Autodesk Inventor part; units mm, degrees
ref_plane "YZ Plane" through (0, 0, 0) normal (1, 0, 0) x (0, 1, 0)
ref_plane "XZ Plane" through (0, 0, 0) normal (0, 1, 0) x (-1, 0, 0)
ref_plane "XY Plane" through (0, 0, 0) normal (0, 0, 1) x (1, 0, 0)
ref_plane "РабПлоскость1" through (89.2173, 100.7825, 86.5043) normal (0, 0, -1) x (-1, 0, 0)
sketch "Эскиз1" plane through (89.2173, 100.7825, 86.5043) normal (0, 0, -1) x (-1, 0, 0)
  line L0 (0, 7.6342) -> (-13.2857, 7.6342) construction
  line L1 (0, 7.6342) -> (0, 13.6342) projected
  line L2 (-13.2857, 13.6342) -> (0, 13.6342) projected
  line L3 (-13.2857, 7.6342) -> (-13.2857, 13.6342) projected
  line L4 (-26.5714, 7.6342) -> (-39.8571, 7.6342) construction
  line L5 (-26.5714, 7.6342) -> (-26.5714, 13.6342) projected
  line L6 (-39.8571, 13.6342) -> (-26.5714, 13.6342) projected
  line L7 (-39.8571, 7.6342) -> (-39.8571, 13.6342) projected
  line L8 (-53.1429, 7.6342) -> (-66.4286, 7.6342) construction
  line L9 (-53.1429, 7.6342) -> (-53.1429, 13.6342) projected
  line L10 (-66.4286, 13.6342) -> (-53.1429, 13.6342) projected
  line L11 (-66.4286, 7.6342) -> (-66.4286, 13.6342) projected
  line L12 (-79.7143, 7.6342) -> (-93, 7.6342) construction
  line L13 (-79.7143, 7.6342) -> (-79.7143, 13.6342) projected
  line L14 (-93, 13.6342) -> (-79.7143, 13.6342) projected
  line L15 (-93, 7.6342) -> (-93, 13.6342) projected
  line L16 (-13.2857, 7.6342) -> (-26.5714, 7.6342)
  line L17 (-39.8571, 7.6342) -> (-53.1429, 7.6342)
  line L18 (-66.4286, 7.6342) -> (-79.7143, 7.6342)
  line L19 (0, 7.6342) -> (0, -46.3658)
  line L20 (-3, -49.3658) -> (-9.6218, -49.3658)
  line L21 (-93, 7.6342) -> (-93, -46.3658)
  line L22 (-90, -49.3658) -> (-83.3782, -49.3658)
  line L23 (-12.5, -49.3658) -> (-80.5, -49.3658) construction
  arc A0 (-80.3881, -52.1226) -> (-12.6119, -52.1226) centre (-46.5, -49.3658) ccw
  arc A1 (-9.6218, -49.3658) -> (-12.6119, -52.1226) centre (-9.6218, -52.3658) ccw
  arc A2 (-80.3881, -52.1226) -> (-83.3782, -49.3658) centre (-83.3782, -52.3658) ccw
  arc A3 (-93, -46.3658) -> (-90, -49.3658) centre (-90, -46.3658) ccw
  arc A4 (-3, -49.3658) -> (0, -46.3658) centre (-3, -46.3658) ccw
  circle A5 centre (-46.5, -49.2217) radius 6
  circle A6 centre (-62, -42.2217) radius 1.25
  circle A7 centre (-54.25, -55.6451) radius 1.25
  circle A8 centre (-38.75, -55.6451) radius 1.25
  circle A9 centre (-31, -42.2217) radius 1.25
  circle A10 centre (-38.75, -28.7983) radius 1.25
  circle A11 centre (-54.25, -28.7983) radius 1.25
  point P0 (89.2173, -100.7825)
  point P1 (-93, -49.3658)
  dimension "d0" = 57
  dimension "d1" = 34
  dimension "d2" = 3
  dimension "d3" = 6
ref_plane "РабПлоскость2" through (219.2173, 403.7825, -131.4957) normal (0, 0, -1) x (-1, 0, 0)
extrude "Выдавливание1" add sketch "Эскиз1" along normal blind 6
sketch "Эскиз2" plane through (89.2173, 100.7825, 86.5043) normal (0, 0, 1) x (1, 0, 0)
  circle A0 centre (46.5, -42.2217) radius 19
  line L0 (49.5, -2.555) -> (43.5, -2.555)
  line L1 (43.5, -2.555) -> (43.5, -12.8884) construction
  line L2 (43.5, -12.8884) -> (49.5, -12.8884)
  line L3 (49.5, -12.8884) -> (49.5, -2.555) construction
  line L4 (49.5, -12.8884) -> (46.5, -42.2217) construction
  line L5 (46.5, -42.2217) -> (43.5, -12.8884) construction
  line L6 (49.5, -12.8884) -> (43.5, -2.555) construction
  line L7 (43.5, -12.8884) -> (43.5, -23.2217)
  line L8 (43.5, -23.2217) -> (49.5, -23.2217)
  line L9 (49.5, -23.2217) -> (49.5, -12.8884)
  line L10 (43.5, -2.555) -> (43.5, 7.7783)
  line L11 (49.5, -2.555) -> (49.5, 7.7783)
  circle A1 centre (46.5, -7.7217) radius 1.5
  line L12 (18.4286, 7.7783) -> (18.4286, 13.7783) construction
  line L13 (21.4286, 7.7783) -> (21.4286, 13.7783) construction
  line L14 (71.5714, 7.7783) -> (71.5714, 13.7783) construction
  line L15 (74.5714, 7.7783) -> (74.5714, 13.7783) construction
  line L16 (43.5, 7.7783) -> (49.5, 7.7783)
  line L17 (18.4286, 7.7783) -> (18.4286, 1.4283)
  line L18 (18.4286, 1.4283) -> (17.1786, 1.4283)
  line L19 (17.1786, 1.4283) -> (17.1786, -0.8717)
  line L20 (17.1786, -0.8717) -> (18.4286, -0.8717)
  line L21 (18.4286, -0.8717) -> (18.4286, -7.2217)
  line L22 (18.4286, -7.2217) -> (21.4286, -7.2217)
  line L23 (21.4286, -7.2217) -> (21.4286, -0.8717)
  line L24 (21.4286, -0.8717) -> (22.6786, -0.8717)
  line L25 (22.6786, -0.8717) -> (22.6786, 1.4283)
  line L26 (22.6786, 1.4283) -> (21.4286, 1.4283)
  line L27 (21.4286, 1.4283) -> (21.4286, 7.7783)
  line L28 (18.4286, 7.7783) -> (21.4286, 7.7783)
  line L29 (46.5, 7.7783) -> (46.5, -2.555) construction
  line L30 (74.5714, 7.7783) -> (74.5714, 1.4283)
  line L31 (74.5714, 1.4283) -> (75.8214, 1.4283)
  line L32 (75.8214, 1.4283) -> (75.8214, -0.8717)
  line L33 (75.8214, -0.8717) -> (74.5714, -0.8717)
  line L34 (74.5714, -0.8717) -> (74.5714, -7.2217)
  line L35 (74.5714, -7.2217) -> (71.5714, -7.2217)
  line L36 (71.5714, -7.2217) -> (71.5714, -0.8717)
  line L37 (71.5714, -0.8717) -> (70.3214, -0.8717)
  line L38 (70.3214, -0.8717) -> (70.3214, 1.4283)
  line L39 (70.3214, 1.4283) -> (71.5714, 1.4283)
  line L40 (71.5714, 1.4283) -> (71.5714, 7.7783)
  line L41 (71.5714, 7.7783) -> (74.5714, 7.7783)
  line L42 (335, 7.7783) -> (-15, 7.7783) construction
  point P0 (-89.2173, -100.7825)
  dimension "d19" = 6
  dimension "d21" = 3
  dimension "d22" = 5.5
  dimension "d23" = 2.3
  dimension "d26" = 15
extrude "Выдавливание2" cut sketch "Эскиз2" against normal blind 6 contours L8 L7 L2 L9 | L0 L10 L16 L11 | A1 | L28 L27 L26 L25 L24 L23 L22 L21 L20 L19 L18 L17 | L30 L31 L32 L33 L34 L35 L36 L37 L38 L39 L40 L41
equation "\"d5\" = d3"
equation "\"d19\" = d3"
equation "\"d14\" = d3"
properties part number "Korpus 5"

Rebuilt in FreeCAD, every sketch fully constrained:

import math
import FreeCAD as App
import Part
import Sketcher

V = App.Vector

doc = App.newDocument("Part")
body = doc.addObject("PartDesign::Body", "Body")

sketch1 = body.newObject("Sketcher::SketchObject", "Sketch")
sketch1.AttachmentSupport = (doc.getObject("XY_Plane"), [""])
sketch1.MapMode = "FlatFace"
sketch1.AttachmentOffset = App.Placement(V(0, 0, 86.5043), App.Rotation())
sketch1.addGeometry(Part.LineSegment(V(89.2, 54.4, 0), V(89.2, 114.4, 0)), False)
sketch1.addGeometry(Part.LineSegment(V(89.2, 114.4, 0), V(102.5, 114.4, 0)), False)
sketch1.addGeometry(Part.LineSegment(V(102.5, 114.4, 0), V(102.5, 108.4, 0)), False)
sketch1.addGeometry(Part.LineSegment(V(102.5, 108.4, 0), V(115.8, 108.4, 0)), False)
sketch1.addGeometry(Part.LineSegment(V(115.8, 108.4, 0), V(115.8, 114.4, 0)), False)
sketch1.addGeometry(Part.LineSegment(V(115.8, 114.4, 0), V(129.1, 114.4, 0)), False)
sketch1.addGeometry(Part.LineSegment(V(129.1, 114.4, 0), V(129.1, 108.4, 0)), False)
sketch1.addGeometry(Part.LineSegment(V(129.1, 108.4, 0), V(142.4, 108.4, 0)), False)
sketch1.addGeometry(Part.LineSegment(V(142.4, 108.4, 0), V(142.4, 114.4, 0)), False)
sketch1.addGeometry(Part.LineSegment(V(142.4, 114.4, 0), V(155.6, 114.4, 0)), False)
sketch1.addGeometry(Part.LineSegment(V(155.6, 114.4, 0), V(155.6, 108.4, 0)), False)
sketch1.addGeometry(Part.LineSegment(V(155.6, 108.4, 0), V(168.9, 108.4, 0)), False)
sketch1.addGeometry(Part.LineSegment(V(168.9, 108.4, 0), V(168.9, 114.4, 0)), False)
sketch1.addGeometry(Part.LineSegment(V(168.9, 114.4, 0), V(182.2, 114.4, 0)), False)
sketch1.addGeometry(Part.LineSegment(V(182.2, 114.4, 0), V(182.2, 54.4, 0)), False)
sketch1.addGeometry(Part.ArcOfCircle(Part.Circle(V(179.2, 54.4, 0), V(0, 0, 1), 3), math.radians(-90), math.radians(0)), False)
sketch1.addGeometry(Part.LineSegment(V(179.2, 51.4, 0), V(172.6, 51.4, 0)), False)
sketch1.addGeometry(Part.ArcOfCircle(Part.Circle(V(172.6, 48.4, 0), V(0, 0, 1), 3), math.radians(90), math.radians(175)), False)
sketch1.addGeometry(Part.ArcOfCircle(Part.Circle(V(135.7, 51.4, 0), V(0, 0, 1), 34), math.radians(-175), math.radians(-5)), False)
sketch1.addGeometry(Part.ArcOfCircle(Part.Circle(V(98.8, 48.4, 0), V(0, 0, 1), 3), math.radians(5), math.radians(90)), False)
sketch1.addGeometry(Part.LineSegment(V(98.8, 51.4, 0), V(92.2, 51.4, 0)), False)
sketch1.addGeometry(Part.ArcOfCircle(Part.Circle(V(92.2, 54.4, 0), V(0, 0, 1), 3), math.radians(180), math.radians(270)), False)
sketch1.addGeometry(Part.Circle(V(143.5, 45.1, 0), V(0, 0, 1), 1.2), False)
sketch1.addGeometry(Part.Circle(V(151.2, 58.6, 0), V(0, 0, 1), 1.2), False)
sketch1.addGeometry(Part.Circle(V(128, 45.1, 0), V(0, 0, 1), 1.2), False)
sketch1.addGeometry(Part.Circle(V(135.7, 51.6, 0), V(0, 0, 1), 6), False)
sketch1.addGeometry(Part.Circle(V(120.2, 58.6, 0), V(0, 0, 1), 1.2), False)
sketch1.addGeometry(Part.Circle(V(143.5, 72, 0), V(0, 0, 1), 1.2), False)
sketch1.addGeometry(Part.Circle(V(128, 72, 0), V(0, 0, 1), 1.2), False)
sketch1.addConstraint(Sketcher.Constraint("Coincident", 0, 2, 1, 1))
sketch1.addConstraint(Sketcher.Constraint("Coincident", 1, 2, 2, 1))
sketch1.addConstraint(Sketcher.Constraint("Coincident", 2, 2, 3, 1))
sketch1.addConstraint(Sketcher.Constraint("Coincident", 3, 2, 4, 1))
sketch1.addConstraint(Sketcher.Constraint("Coincident", 4, 2, 5, 1))
sketch1.addConstraint(Sketcher.Constraint("Coincident", 5, 2, 6, 1))
sketch1.addConstraint(Sketcher.Constraint("Coincident", 6, 2, 7, 1))
sketch1.addConstraint(Sketcher.Constraint("Coincident", 7, 2, 8, 1))
sketch1.addConstraint(Sketcher.Constraint("Coincident", 8, 2, 9, 1))
sketch1.addConstraint(Sketcher.Constraint("Coincident", 9, 2, 10, 1))
sketch1.addConstraint(Sketcher.Constraint("Coincident", 10, 2, 11, 1))
sketch1.addConstraint(Sketcher.Constraint("Coincident", 11, 2, 12, 1))
sketch1.addConstraint(Sketcher.Constraint("Coincident", 12, 2, 13, 1))
sketch1.addConstraint(Sketcher.Constraint("Coincident", 13, 2, 14, 1))
sketch1.addConstraint(Sketcher.Constraint("Tangent", 14, 2, 15, 2))
sketch1.addConstraint(Sketcher.Constraint("Tangent", 15, 1, 16, 1))
sketch1.addConstraint(Sketcher.Constraint("Tangent", 16, 2, 17, 1))
sketch1.addConstraint(Sketcher.Constraint("Tangent", 17, 2, 18, 2))
sketch1.addConstraint(Sketcher.Constraint("Tangent", 18, 1, 19, 1))
sketch1.addConstraint(Sketcher.Constraint("Tangent", 19, 2, 20, 1))
sketch1.addConstraint(Sketcher.Constraint("Tangent", 20, 2, 21, 2))
sketch1.addConstraint(Sketcher.Constraint("Tangent", 21, 1, 0, 1))
sketch1.addConstraint(Sketcher.Constraint("Vertical", 0))
sketch1.addConstraint(Sketcher.Constraint("Horizontal", 1))
sketch1.addConstraint(Sketcher.Constraint("Vertical", 2))
sketch1.addConstraint(Sketcher.Constraint("Horizontal", 3))
sketch1.addConstraint(Sketcher.Constraint("Vertical", 4))
sketch1.addConstraint(Sketcher.Constraint("Horizontal", 5))
sketch1.addConstraint(Sketcher.Constraint("Vertical", 6))
sketch1.addConstraint(Sketcher.Constraint("Horizontal", 7))
sketch1.addConstraint(Sketcher.Constraint("Vertical", 8))
sketch1.addConstraint(Sketcher.Constraint("Horizontal", 9))
sketch1.addConstraint(Sketcher.Constraint("Vertical", 10))
sketch1.addConstraint(Sketcher.Constraint("Horizontal", 11))
sketch1.addConstraint(Sketcher.Constraint("Vertical", 12))
sketch1.addConstraint(Sketcher.Constraint("Horizontal", 13))
sketch1.addConstraint(Sketcher.Constraint("Vertical", 14))
sketch1.addConstraint(Sketcher.Constraint("Horizontal", 16))
sketch1.addConstraint(Sketcher.Constraint("Horizontal", 20))
sketch1.addConstraint(Sketcher.Constraint("Equal", 15, 17))
sketch1.addConstraint(Sketcher.Constraint("Equal", 17, 19))
sketch1.addConstraint(Sketcher.Constraint("Equal", 19, 21))
sketch1.addConstraint(Sketcher.Constraint("Equal", 22, 23))
sketch1.addConstraint(Sketcher.Constraint("Equal", 23, 24))
sketch1.addConstraint(Sketcher.Constraint("Equal", 24, 26))
sketch1.addConstraint(Sketcher.Constraint("Equal", 26, 27))
sketch1.addConstraint(Sketcher.Constraint("Equal", 27, 28))
sketch1.addConstraint(Sketcher.Constraint("Horizontal", 17, 3, 19, 3))
sketch1.addConstraint(Sketcher.Constraint("Horizontal", 22, 3, 24, 3))
sketch1.addConstraint(Sketcher.Constraint("Horizontal", 23, 3, 26, 3))
sketch1.addConstraint(Sketcher.Constraint("Horizontal", 27, 3, 28, 3))
sketch1.addConstraint(Sketcher.Constraint("Horizontal", 1, 2, 4, 2))
sketch1.addConstraint(Sketcher.Constraint("Horizontal", 3, 2, 6, 2))
sketch1.addConstraint(Sketcher.Constraint("Horizontal", 5, 2, 8, 2))
sketch1.addConstraint(Sketcher.Constraint("Horizontal", 7, 2, 10, 2))
sketch1.addConstraint(Sketcher.Constraint("Horizontal", 9, 2, 12, 2))
sketch1.addConstraint(Sketcher.Constraint("Horizontal", 18, 3, 15, 1))
sketch1.addConstraint(Sketcher.Constraint("Vertical", 18, 3, 25, 3))
sketch1.addConstraint(Sketcher.Constraint("Vertical", 22, 3, 27, 3))
sketch1.addConstraint(Sketcher.Constraint("Vertical", 24, 3, 28, 3))
sketch1.addConstraint(Sketcher.Constraint("Equal", 1, 3))
sketch1.addConstraint(Sketcher.Constraint("Equal", 3, 5))
sketch1.addConstraint(Sketcher.Constraint("Equal", 5, 7))
sketch1.addConstraint(Sketcher.Constraint("Equal", 7, 9))
sketch1.addConstraint(Sketcher.Constraint("Equal", 9, 11))
sketch1.addConstraint(Sketcher.Constraint("Equal", 11, 13))
sketch1.addConstraint(Sketcher.Constraint("Equal", 16, 20))
sketch1.addConstraint(Sketcher.Constraint("Diameter", 25, 12.0))
sketch1.addConstraint(Sketcher.Constraint("Radius", 15, 3.0))
sketch1.addConstraint(Sketcher.Constraint("Radius", 18, 34.0))
sketch1.addConstraint(Sketcher.Constraint("DistanceY", 2, 2, 2, 1, 6.0))
sketch1.addConstraint(Sketcher.Constraint("Diameter", 22, 2.5))
sketch1.addConstraint(Sketcher.Constraint("DistanceY", 0, 1, 0, 2, 60.0))
sketch1.addConstraint(Sketcher.Constraint("DistanceX", 21, 3, 15, 3, 87.0))
sketch1.addConstraint(Sketcher.Constraint("DistanceX", 23, 3, 15, 3, 28.0))
sketch1.addConstraint(Sketcher.Constraint("DistanceY", 25, 3, 23, 3, 7.0))
sketch1.addConstraint(Sketcher.Constraint("DistanceX", 0, 2, 26, 3, 31.0))
sketch1.addConstraint(Sketcher.Constraint("DistanceX", 24, 3, 22, 3, 15.5))
sketch1.addConstraint(Sketcher.Constraint("DistanceY", -1, 1, 17, 2, 48.66))
sketch1.addConstraint(Sketcher.Constraint("DistanceX", 18, 3, 22, 3, 7.75))
sketch1.addConstraint(Sketcher.Constraint("DistanceX", -1, 1, 19, 3, 98.839))
sketch1.addConstraint(Sketcher.Constraint("DistanceY", 18, 3, 23, 3, 7.144))
sketch1.addConstraint(Sketcher.Constraint("DistanceY", -1, 1, 22, 3, 45.1374))
sketch1.addConstraint(Sketcher.Constraint("DistanceY", -1, 1, 27, 3, 71.9842))
pad1 = body.newObject("PartDesign::Pad", "Pad")
pad1.Profile = sketch1
pad1.Length = 6
pad1.Reversed = True

sketch2 = body.newObject("Sketcher::SketchObject", "Sketch001")
sketch2.AttachmentSupport = (doc.getObject("XY_Plane"), [""])
sketch2.MapMode = "FlatFace"
sketch2.AttachmentOffset = App.Placement(V(0, 0, 86.5043), App.Rotation())
sketch2.addGeometry(Part.LineSegment(V(132.7, 77.6, 0), V(138.7, 77.6, 0)), False)
sketch2.addGeometry(Part.LineSegment(V(138.7, 77.6, 0), V(138.7, 87.9, 0)), False)
sketch2.addGeometry(Part.LineSegment(V(138.7, 87.9, 0), V(132.7, 87.9, 0)), False)
sketch2.addGeometry(Part.LineSegment(V(132.7, 87.9, 0), V(132.7, 77.6, 0)), False)
sketch2.addGeometry(Part.LineSegment(V(132.7, 98.2, 0), V(138.7, 98.2, 0)), False)
sketch2.addGeometry(Part.LineSegment(V(138.7, 98.2, 0), V(138.7, 108.6, 0)), False)
sketch2.addGeometry(Part.LineSegment(V(138.7, 108.6, 0), V(132.7, 108.6, 0)), False)
sketch2.addGeometry(Part.LineSegment(V(132.7, 108.6, 0), V(132.7, 98.2, 0)), False)
sketch2.addGeometry(Part.Circle(V(135.7, 93.1, 0), V(0, 0, 1), 1.5), False)
sketch2.addGeometry(Part.LineSegment(V(110.6, 108.6, 0), V(107.6, 108.6, 0)), False)
sketch2.addGeometry(Part.LineSegment(V(107.6, 108.6, 0), V(107.6, 102.2, 0)), False)
sketch2.addGeometry(Part.LineSegment(V(107.6, 102.2, 0), V(106.4, 102.2, 0)), False)
sketch2.addGeometry(Part.LineSegment(V(106.4, 102.2, 0), V(106.4, 99.9, 0)), False)
sketch2.addGeometry(Part.LineSegment(V(106.4, 99.9, 0), V(107.6, 99.9, 0)), False)
sketch2.addGeometry(Part.LineSegment(V(107.6, 99.9, 0), V(107.6, 93.6, 0)), False)
sketch2.addGeometry(Part.LineSegment(V(107.6, 93.6, 0), V(110.6, 93.6, 0)), False)
sketch2.addGeometry(Part.LineSegment(V(110.6, 93.6, 0), V(110.6, 99.9, 0)), False)
sketch2.addGeometry(Part.LineSegment(V(110.6, 99.9, 0), V(111.9, 99.9, 0)), False)
sketch2.addGeometry(Part.LineSegment(V(111.9, 99.9, 0), V(111.9, 102.2, 0)), False)
sketch2.addGeometry(Part.LineSegment(V(111.9, 102.2, 0), V(110.6, 102.2, 0)), False)
sketch2.addGeometry(Part.LineSegment(V(110.6, 102.2, 0), V(110.6, 108.6, 0)), False)
sketch2.addGeometry(Part.LineSegment(V(163.8, 102.2, 0), V(163.8, 108.6, 0)), False)
sketch2.addGeometry(Part.LineSegment(V(163.8, 108.6, 0), V(160.8, 108.6, 0)), False)
sketch2.addGeometry(Part.LineSegment(V(160.8, 108.6, 0), V(160.8, 102.2, 0)), False)
sketch2.addGeometry(Part.LineSegment(V(160.8, 102.2, 0), V(159.5, 102.2, 0)), False)
sketch2.addGeometry(Part.LineSegment(V(159.5, 102.2, 0), V(159.5, 99.9, 0)), False)
sketch2.addGeometry(Part.LineSegment(V(159.5, 99.9, 0), V(160.8, 99.9, 0)), False)
sketch2.addGeometry(Part.LineSegment(V(160.8, 99.9, 0), V(160.8, 93.6, 0)), False)
sketch2.addGeometry(Part.LineSegment(V(160.8, 93.6, 0), V(163.8, 93.6, 0)), False)
sketch2.addGeometry(Part.LineSegment(V(163.8, 93.6, 0), V(163.8, 99.9, 0)), False)
sketch2.addGeometry(Part.LineSegment(V(163.8, 99.9, 0), V(165, 99.9, 0)), False)
sketch2.addGeometry(Part.LineSegment(V(165, 99.9, 0), V(165, 102.2, 0)), False)
sketch2.addGeometry(Part.LineSegment(V(165, 102.2, 0), V(163.8, 102.2, 0)), False)
sketch2.addConstraint(Sketcher.Constraint("Coincident", 0, 2, 1, 1))
sketch2.addConstraint(Sketcher.Constraint("Coincident", 1, 2, 2, 1))
sketch2.addConstraint(Sketcher.Constraint("Coincident", 2, 2, 3, 1))
sketch2.addConstraint(Sketcher.Constraint("Coincident", 3, 2, 0, 1))
sketch2.addConstraint(Sketcher.Constraint("Coincident", 4, 2, 5, 1))
sketch2.addConstraint(Sketcher.Constraint("Coincident", 5, 2, 6, 1))
sketch2.addConstraint(Sketcher.Constraint("Coincident", 6, 2, 7, 1))
sketch2.addConstraint(Sketcher.Constraint("Coincident", 7, 2, 4, 1))
sketch2.addConstraint(Sketcher.Constraint("Coincident", 9, 2, 10, 1))
sketch2.addConstraint(Sketcher.Constraint("Coincident", 10, 2, 11, 1))
sketch2.addConstraint(Sketcher.Constraint("Coincident", 11, 2, 12, 1))
sketch2.addConstraint(Sketcher.Constraint("Coincident", 12, 2, 13, 1))
sketch2.addConstraint(Sketcher.Constraint("Coincident", 13, 2, 14, 1))
sketch2.addConstraint(Sketcher.Constraint("Coincident", 14, 2, 15, 1))
sketch2.addConstraint(Sketcher.Constraint("Coincident", 15, 2, 16, 1))
sketch2.addConstraint(Sketcher.Constraint("Coincident", 16, 2, 17, 1))
sketch2.addConstraint(Sketcher.Constraint("Coincident", 17, 2, 18, 1))
sketch2.addConstraint(Sketcher.Constraint("Coincident", 18, 2, 19, 1))
sketch2.addConstraint(Sketcher.Constraint("Coincident", 19, 2, 20, 1))
sketch2.addConstraint(Sketcher.Constraint("Coincident", 20, 2, 9, 1))
sketch2.addConstraint(Sketcher.Constraint("Coincident", 21, 2, 22, 1))
sketch2.addConstraint(Sketcher.Constraint("Coincident", 22, 2, 23, 1))
sketch2.addConstraint(Sketcher.Constraint("Coincident", 23, 2, 24, 1))
sketch2.addConstraint(Sketcher.Constraint("Coincident", 24, 2, 25, 1))
sketch2.addConstraint(Sketcher.Constraint("Coincident", 25, 2, 26, 1))
sketch2.addConstraint(Sketcher.Constraint("Coincident", 26, 2, 27, 1))
sketch2.addConstraint(Sketcher.Constraint("Coincident", 27, 2, 28, 1))
sketch2.addConstraint(Sketcher.Constraint("Coincident", 28, 2, 29, 1))
sketch2.addConstraint(Sketcher.Constraint("Coincident", 29, 2, 30, 1))
sketch2.addConstraint(Sketcher.Constraint("Coincident", 30, 2, 31, 1))
sketch2.addConstraint(Sketcher.Constraint("Coincident", 31, 2, 32, 1))
sketch2.addConstraint(Sketcher.Constraint("Coincident", 32, 2, 21, 1))
sketch2.addConstraint(Sketcher.Constraint("Horizontal", 0))
sketch2.addConstraint(Sketcher.Constraint("Vertical", 1))
sketch2.addConstraint(Sketcher.Constraint("Horizontal", 2))
sketch2.addConstraint(Sketcher.Constraint("Vertical", 3))
sketch2.addConstraint(Sketcher.Constraint("Horizontal", 4))
sketch2.addConstraint(Sketcher.Constraint("Vertical", 5))
sketch2.addConstraint(Sketcher.Constraint("Horizontal", 6))
sketch2.addConstraint(Sketcher.Constraint("Vertical", 7))
sketch2.addConstraint(Sketcher.Constraint("Horizontal", 9))
sketch2.addConstraint(Sketcher.Constraint("Vertical", 10))
sketch2.addConstraint(Sketcher.Constraint("Horizontal", 11))
sketch2.addConstraint(Sketcher.Constraint("Vertical", 12))
sketch2.addConstraint(Sketcher.Constraint("Horizontal", 13))
sketch2.addConstraint(Sketcher.Constraint("Vertical", 14))
sketch2.addConstraint(Sketcher.Constraint("Horizontal", 15))
sketch2.addConstraint(Sketcher.Constraint("Vertical", 16))
sketch2.addConstraint(Sketcher.Constraint("Horizontal", 17))
sketch2.addConstraint(Sketcher.Constraint("Vertical", 18))
sketch2.addConstraint(Sketcher.Constraint("Horizontal", 19))
sketch2.addConstraint(Sketcher.Constraint("Vertical", 20))
sketch2.addConstraint(Sketcher.Constraint("Vertical", 21))
sketch2.addConstraint(Sketcher.Constraint("Horizontal", 22))
sketch2.addConstraint(Sketcher.Constraint("Vertical", 23))
sketch2.addConstraint(Sketcher.Constraint("Horizontal", 24))
sketch2.addConstraint(Sketcher.Constraint("Vertical", 25))
sketch2.addConstraint(Sketcher.Constraint("Horizontal", 26))
sketch2.addConstraint(Sketcher.Constraint("Vertical", 27))
sketch2.addConstraint(Sketcher.Constraint("Horizontal", 28))
sketch2.addConstraint(Sketcher.Constraint("Vertical", 29))
sketch2.addConstraint(Sketcher.Constraint("Horizontal", 30))
sketch2.addConstraint(Sketcher.Constraint("Vertical", 31))
sketch2.addConstraint(Sketcher.Constraint("Horizontal", 32))
sketch2.addConstraint(Sketcher.Constraint("Horizontal", 6, 2, 9, 2))
sketch2.addConstraint(Sketcher.Constraint("Horizontal", 13, 2, 16, 2))
sketch2.addConstraint(Sketcher.Constraint("Horizontal", 11, 2, 18, 2))
sketch2.addConstraint(Sketcher.Constraint("Horizontal", 20, 2, 21, 2))
sketch2.addConstraint(Sketcher.Constraint("Horizontal", 19, 2, 23, 2))
sketch2.addConstraint(Sketcher.Constraint("Horizontal", 17, 2, 25, 2))
sketch2.addConstraint(Sketcher.Constraint("Horizontal", 15, 2, 27, 2))
sketch2.addConstraint(Sketcher.Constraint("Horizontal", 26, 2, 29, 2))
sketch2.addConstraint(Sketcher.Constraint("Horizontal", 24, 2, 31, 2))
sketch2.addConstraint(Sketcher.Constraint("Vertical", 1, 2, 4, 2))
sketch2.addConstraint(Sketcher.Constraint("Vertical", 3, 2, 6, 2))
sketch2.addConstraint(Sketcher.Constraint("Vertical", 10, 2, 13, 2))
sketch2.addConstraint(Sketcher.Constraint("Vertical", 16, 2, 19, 2))
sketch2.addConstraint(Sketcher.Constraint("Vertical", 23, 2, 26, 2))
sketch2.addConstraint(Sketcher.Constraint("Vertical", 21, 2, 28, 2))
sketch2.addConstraint(Sketcher.Constraint("Equal", 13, 17))
sketch2.addConstraint(Sketcher.Constraint("Equal", 15, 22))
sketch2.addConstraint(Sketcher.Constraint("Equal", 19, 24))
sketch2.addConstraint(Sketcher.Constraint("Equal", 26, 30))
sketch2.addConstraint(Sketcher.Constraint("Equal", 3, 5))
sketch2.addConstraint(Sketcher.Constraint("Equal", 10, 14))
sketch2.addConstraint(Sketcher.Constraint("Diameter", 8, 3.0))
sketch2.addConstraint(Sketcher.Constraint("DistanceX", 0, 1, 0, 2, 6.0))
sketch2.addConstraint(Sketcher.Constraint("DistanceX", 9, 2, 9, 1, 3.0))
sketch2.addConstraint(Sketcher.Constraint("DistanceY", 12, 2, 12, 1, 2.3))
sketch2.addConstraint(Sketcher.Constraint("DistanceX", 8, 3, 0, 2, 3.0))
sketch2.addConstraint(Sketcher.Constraint("DistanceY", 14, 2, 9, 2, 15.0))
sketch2.addConstraint(Sketcher.Constraint("DistanceX", 12, 2, 17, 2, 5.5))
sketch2.addConstraint(Sketcher.Constraint("DistanceY", 0, 2, 5, 2, 31.0))
sketch2.addConstraint(Sketcher.Constraint("DistanceY", 0, 2, 8, 3, 15.5))
sketch2.addConstraint(Sketcher.Constraint("DistanceY", 1, 1, 1, 2, 10.3333))
sketch2.addConstraint(Sketcher.Constraint("DistanceY", -1, 1, 1, 2, 87.894))
sketch2.addConstraint(Sketcher.Constraint("DistanceX", -1, 1, 9, 2, 107.646))
sketch2.addConstraint(Sketcher.Constraint("DistanceX", -1, 1, 8, 3, 135.7173))
sketch2.addConstraint(Sketcher.Constraint("DistanceX", -1, 1, 21, 2, 163.7887))
pocket1 = body.newObject("PartDesign::Pocket", "Pocket")
pocket1.Profile = sketch2
pocket1.Length = 6

doc.recompute()
